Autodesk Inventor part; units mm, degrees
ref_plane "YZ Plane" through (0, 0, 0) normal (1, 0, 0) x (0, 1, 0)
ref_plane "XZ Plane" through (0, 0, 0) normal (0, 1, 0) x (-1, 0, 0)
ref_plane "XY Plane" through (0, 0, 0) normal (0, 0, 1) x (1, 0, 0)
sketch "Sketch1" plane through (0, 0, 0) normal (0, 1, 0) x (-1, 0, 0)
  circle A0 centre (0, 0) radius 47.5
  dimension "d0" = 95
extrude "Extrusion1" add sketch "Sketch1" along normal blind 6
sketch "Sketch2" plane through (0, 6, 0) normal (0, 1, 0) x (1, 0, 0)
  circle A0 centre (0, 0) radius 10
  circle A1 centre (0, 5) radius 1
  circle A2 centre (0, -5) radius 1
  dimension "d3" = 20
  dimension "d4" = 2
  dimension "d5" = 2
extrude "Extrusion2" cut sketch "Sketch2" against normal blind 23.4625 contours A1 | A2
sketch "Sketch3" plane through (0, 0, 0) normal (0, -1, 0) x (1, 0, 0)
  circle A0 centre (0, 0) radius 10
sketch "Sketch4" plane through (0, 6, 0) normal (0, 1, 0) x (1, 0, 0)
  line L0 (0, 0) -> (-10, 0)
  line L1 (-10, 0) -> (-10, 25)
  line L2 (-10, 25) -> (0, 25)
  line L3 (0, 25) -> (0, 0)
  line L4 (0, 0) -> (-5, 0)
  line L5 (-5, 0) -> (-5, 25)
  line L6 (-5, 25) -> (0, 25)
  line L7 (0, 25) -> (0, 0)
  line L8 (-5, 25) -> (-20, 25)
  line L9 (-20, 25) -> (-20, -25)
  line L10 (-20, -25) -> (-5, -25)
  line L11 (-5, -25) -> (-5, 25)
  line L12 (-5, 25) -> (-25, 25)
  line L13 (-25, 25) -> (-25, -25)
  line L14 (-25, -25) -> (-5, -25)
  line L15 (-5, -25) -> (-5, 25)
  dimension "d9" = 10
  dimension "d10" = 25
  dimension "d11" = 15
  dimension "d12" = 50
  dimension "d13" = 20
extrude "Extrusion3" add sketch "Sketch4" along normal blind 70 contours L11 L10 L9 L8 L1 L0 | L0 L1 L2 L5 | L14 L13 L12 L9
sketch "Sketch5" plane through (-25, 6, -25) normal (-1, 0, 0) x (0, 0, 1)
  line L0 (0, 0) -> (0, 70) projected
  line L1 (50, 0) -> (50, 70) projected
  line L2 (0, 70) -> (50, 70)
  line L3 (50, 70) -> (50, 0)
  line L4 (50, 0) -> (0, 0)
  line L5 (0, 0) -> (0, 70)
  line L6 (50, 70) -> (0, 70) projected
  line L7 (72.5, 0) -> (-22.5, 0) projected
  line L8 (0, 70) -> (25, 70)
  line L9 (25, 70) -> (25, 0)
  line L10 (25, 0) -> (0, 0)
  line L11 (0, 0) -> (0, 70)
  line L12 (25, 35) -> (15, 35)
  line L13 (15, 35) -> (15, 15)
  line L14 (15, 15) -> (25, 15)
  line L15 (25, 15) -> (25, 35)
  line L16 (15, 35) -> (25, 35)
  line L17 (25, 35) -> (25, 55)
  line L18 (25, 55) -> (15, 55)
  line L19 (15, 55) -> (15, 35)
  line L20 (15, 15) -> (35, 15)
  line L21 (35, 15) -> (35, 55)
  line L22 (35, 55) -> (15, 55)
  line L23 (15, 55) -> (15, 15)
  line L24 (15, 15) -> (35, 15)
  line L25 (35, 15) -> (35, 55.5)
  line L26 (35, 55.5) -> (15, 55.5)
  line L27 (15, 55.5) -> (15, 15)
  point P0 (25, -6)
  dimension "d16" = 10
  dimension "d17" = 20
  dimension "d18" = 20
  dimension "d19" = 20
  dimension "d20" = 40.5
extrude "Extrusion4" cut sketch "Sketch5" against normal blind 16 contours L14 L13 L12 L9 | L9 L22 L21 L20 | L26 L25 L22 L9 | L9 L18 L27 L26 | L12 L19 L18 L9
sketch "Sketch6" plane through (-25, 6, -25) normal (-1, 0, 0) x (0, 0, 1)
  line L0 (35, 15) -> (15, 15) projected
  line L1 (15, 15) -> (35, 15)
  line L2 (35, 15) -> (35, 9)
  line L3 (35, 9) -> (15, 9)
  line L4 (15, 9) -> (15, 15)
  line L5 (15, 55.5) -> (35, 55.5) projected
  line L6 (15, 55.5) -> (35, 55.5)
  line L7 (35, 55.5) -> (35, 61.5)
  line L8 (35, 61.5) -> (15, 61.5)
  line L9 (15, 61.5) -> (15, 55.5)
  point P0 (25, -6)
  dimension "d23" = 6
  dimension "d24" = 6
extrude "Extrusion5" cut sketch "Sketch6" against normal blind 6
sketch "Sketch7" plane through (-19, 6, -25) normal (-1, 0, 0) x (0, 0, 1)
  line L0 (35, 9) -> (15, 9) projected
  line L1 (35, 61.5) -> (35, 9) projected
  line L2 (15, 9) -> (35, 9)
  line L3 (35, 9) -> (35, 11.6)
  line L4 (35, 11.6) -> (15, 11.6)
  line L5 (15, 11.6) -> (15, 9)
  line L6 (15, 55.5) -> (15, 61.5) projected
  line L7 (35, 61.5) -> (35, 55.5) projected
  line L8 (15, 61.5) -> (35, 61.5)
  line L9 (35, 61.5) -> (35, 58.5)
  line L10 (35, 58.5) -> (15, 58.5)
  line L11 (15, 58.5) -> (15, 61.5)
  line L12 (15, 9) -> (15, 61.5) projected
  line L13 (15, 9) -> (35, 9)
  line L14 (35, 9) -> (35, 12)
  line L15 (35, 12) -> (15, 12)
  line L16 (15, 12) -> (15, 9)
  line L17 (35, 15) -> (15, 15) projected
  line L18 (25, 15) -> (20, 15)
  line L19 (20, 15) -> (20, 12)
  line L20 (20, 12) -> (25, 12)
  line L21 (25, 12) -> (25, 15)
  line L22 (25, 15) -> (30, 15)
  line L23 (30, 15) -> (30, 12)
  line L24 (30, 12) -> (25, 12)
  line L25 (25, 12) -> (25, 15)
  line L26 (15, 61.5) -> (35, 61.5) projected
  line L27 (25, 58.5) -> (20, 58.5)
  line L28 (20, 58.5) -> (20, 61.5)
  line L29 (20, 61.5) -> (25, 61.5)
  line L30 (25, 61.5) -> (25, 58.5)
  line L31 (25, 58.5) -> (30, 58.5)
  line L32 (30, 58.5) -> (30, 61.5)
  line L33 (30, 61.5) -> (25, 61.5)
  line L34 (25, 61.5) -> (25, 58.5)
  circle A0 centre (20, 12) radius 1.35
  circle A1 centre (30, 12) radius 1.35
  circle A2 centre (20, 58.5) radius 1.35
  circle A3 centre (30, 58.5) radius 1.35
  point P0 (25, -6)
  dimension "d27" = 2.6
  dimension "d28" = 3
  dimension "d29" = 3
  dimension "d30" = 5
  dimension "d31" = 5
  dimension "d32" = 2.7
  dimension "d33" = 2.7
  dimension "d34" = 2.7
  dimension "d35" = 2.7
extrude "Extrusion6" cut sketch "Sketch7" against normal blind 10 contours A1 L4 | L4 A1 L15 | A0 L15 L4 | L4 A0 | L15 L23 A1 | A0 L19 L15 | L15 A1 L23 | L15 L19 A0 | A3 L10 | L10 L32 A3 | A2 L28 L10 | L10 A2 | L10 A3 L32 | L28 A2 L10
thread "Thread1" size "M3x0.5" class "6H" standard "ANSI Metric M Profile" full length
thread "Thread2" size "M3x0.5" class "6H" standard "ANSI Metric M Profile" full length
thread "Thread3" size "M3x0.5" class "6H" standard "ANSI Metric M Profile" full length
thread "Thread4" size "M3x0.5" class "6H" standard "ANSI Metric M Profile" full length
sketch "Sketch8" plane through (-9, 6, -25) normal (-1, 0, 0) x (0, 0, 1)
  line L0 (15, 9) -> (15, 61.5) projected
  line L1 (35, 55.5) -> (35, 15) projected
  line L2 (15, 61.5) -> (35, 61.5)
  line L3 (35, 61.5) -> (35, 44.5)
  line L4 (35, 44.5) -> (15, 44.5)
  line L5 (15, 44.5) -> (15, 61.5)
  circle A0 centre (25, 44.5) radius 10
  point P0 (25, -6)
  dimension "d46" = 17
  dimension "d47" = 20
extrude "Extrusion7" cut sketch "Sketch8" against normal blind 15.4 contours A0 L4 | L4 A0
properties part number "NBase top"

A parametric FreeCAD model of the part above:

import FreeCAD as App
import Part
import Sketcher
Q = App.Units.Quantity


def add_polygon(sketch, points):
    """Adds a closed chain of lines whose ends are joined by coincident constraints."""
    first, n = sketch.GeometryCount, len(points)
    for a, b in zip(points, points[1:] + points[:1]):
        sketch.addGeometry(Part.LineSegment(App.Vector(*a, 0), App.Vector(*b, 0)), False)
    for i in range(n):
        sketch.addConstraint(Sketcher.Constraint("Coincident", first + i, 2, first + (i + 1) % n, 1))

doc = App.newDocument("Part")
body = doc.addObject("PartDesign::Body", "Body")

# Sketch on XZ plane
sketch1 = body.newObject("Sketcher::SketchObject", "Sketch")
sketch1.AttachmentSupport = (doc.getObject("XZ_Plane"), [""])
sketch1.MapMode = "FlatFace"
sketch1.addGeometry(Part.Circle(App.Vector(0, 0, 0), App.Vector(0, 0, 1), 47.5), False)
sketch1.addConstraint(Sketcher.Constraint("Coincident", 0, 3, -1, 1))
sketch1.addConstraint(Sketcher.Constraint("Diameter", 0, Q("95 mm")))
pad1 = body.newObject("PartDesign::Pad", "Pad")
pad1.Profile = sketch1
pad1.Length = 6
pad1.Reversed = True

# Sketch on XZ plane
sketch2 = body.newObject("Sketcher::SketchObject", "Sketch001")
sketch2.AttachmentSupport = (doc.getObject("XZ_Plane"), [""])
sketch2.MapMode = "FlatFace"
sketch2.AttachmentOffset = App.Placement(App.Vector(0, 0, -6), App.Rotation())
sketch2.addGeometry(Part.Circle(App.Vector(0, -5, 0), App.Vector(0, 0, 1), 1), False)
sketch2.addGeometry(Part.Circle(App.Vector(0, 5, 0), App.Vector(0, 0, 1), 1), False)
sketch2.addConstraint(Sketcher.Constraint("Equal", 0, 1))
sketch2.addConstraint(Sketcher.Constraint("Symmetric", 0, 3, 1, 3, -1, 1))
sketch2.addConstraint(Sketcher.Constraint("PointOnObject", 0, 3, -2))
sketch2.addConstraint(Sketcher.Constraint("Diameter", 0, Q("2 mm")))
sketch2.addConstraint(Sketcher.Constraint("DistanceY", 0, 3, -1, 1, Q("5 mm")))
pocket1 = body.newObject("PartDesign::Pocket", "Pocket")
pocket1.Profile = sketch2
pocket1.Length = 23.4625
pocket1.Reversed = True

# Sketch on XZ plane
sketch3 = body.newObject("Sketcher::SketchObject", "Sketch002")
sketch3.AttachmentSupport = (doc.getObject("XZ_Plane"), [""])
sketch3.MapMode = "FlatFace"
sketch3.AttachmentOffset = App.Placement(App.Vector(0, 0, -6), App.Rotation())
add_polygon(sketch3, [(-5, 25), (-5, -25), (-25, -25), (-25, 25)])  # lines 0-3
sketch3.addConstraint(Sketcher.Constraint("Vertical", 0))
sketch3.addConstraint(Sketcher.Constraint("Horizontal", 1))
sketch3.addConstraint(Sketcher.Constraint("Vertical", 2))
sketch3.addConstraint(Sketcher.Constraint("Horizontal", 3))
sketch3.addConstraint(Sketcher.Constraint("DistanceX", 1, 2, 1, 1, Q("20 mm")))
sketch3.addConstraint(Sketcher.Constraint("DistanceY", 0, 2, 0, 1, Q("50 mm")))
sketch3.addConstraint(Sketcher.Constraint("DistanceY", 0, 2, -1, 1, Q("25 mm")))
sketch3.addConstraint(Sketcher.Constraint("DistanceX", 1, 2, -1, 1, Q("25 mm")))
pad2 = body.newObject("PartDesign::Pad", "Pad001")
pad2.Profile = sketch3
pad2.Length = 70
pad2.Reversed = True

# Sketch on YZ plane
sketch4 = body.newObject("Sketcher::SketchObject", "Sketch003")
sketch4.AttachmentSupport = (doc.getObject("YZ_Plane"), [""])
sketch4.MapMode = "FlatFace"
sketch4.AttachmentOffset = App.Placement(App.Vector(0, 0, -25), App.Rotation())
add_polygon(sketch4, [(21, -10), (21, 10), (61.5, 10), (61.5, -10)])  # lines 0-3
sketch4.addConstraint(Sketcher.Constraint("Vertical", 0))
sketch4.addConstraint(Sketcher.Constraint("Horizontal", 1))
sketch4.addConstraint(Sketcher.Constraint("Vertical", 2))
sketch4.addConstraint(Sketcher.Constraint("Horizontal", 3))
sketch4.addConstraint(Sketcher.Constraint("DistanceY", 0, 1, 0, 2, Q("20 mm")))
sketch4.addConstraint(Sketcher.Constraint("DistanceX", 1, 1, 1, 2, Q("40.5 mm")))
sketch4.addConstraint(Sketcher.Constraint("DistanceY", -1, 1, 0, 2, Q("10 mm")))
sketch4.addConstraint(Sketcher.Constraint("DistanceX", -1, 1, 0, 2, Q("21 mm")))
pocket2 = body.newObject("PartDesign::Pocket", "Pocket001")
pocket2.Profile = sketch4
pocket2.Length = 16
pocket2.Reversed = True

# Sketch on YZ plane
sketch5 = body.newObject("Sketcher::SketchObject", "Sketch004")
sketch5.AttachmentSupport = (doc.getObject("YZ_Plane"), [""])
sketch5.MapMode = "FlatFace"
sketch5.AttachmentOffset = App.Placement(App.Vector(0, 0, -25), App.Rotation())
add_polygon(sketch5, [(15, 10), (21, 10), (21, -10), (15, -10)])  # lines 0-3
add_polygon(sketch5, [(67.5, -10), (61.5, -10), (61.5, 10), (67.5, 10)])  # lines 4-7
sketch5.addConstraint(Sketcher.Constraint("Horizontal", 0))
sketch5.addConstraint(Sketcher.Constraint("Vertical", 1))
sketch5.addConstraint(Sketcher.Constraint("Horizontal", 2))
sketch5.addConstraint(Sketcher.Constraint("Vertical", 3))
sketch5.addConstraint(Sketcher.Constraint("Horizontal", 4))
sketch5.addConstraint(Sketcher.Constraint("Vertical", 5))
sketch5.addConstraint(Sketcher.Constraint("Horizontal", 6))
sketch5.addConstraint(Sketcher.Constraint("Vertical", 7))
sketch5.addConstraint(Sketcher.Constraint("Horizontal", 2, 2, 4, 2))
sketch5.addConstraint(Sketcher.Constraint("Horizontal", 3, 2, 5, 2))
sketch5.addConstraint(Sketcher.Constraint("Equal", 2, 4))
sketch5.addConstraint(Sketcher.Constraint("DistanceX", 0, 1, 0, 2, Q("6 mm")))
sketch5.addConstraint(Sketcher.Constraint("DistanceY", 1, 2, 1, 1, Q("20 mm")))
sketch5.addConstraint(Sketcher.Constraint("DistanceX", -1, 1, 0, 2, Q("21 mm")))
sketch5.addConstraint(Sketcher.Constraint("DistanceY", -1, 1, 0, 2, Q("10 mm")))
sketch5.addConstraint(Sketcher.Constraint("DistanceX", -1, 1, 4, 2, Q("61.5 mm")))
pocket3 = body.newObject("PartDesign::Pocket", "Pocket002")
pocket3.Profile = sketch5
pocket3.Length = 6
pocket3.Reversed = True

# Sketch on YZ plane
sketch6 = body.newObject("Sketcher::SketchObject", "Sketch005")
sketch6.AttachmentSupport = (doc.getObject("YZ_Plane"), [""])
sketch6.MapMode = "FlatFace"
sketch6.AttachmentOffset = App.Placement(App.Vector(0, 0, -19), App.Rotation())
sketch6.addGeometry(Part.Circle(App.Vector(18, 5, 0), App.Vector(0, 0, 1), 1.35), False)
sketch6.addGeometry(Part.Circle(App.Vector(18, -5, 0), App.Vector(0, 0, 1), 1.35), False)
sketch6.addGeometry(Part.Circle(App.Vector(64.5, 5, 0), App.Vector(0, 0, 1), 1.35), False)
sketch6.addGeometry(Part.Circle(App.Vector(64.5, -5, 0), App.Vector(0, 0, 1), 1.35), False)
sketch6.addConstraint(Sketcher.Constraint("Equal", 0, 1))
sketch6.addConstraint(Sketcher.Constraint("Equal", 1, 2))
sketch6.addConstraint(Sketcher.Constraint("Equal", 2, 3))
sketch6.addConstraint(Sketcher.Constraint("Symmetric", 0, 3, 1, 3, -1))
sketch6.addConstraint(Sketcher.Constraint("Symmetric", 2, 3, 3, 3, -1))
sketch6.addConstraint(Sketcher.Constraint("Horizontal", 0, 3, 2, 3))
sketch6.addConstraint(Sketcher.Constraint("Diameter", 0, Q("2.7 mm")))
sketch6.addConstraint(Sketcher.Constraint("DistanceY", -1, 1, 0, 3, Q("5 mm")))
sketch6.addConstraint(Sketcher.Constraint("DistanceX", -1, 1, 0, 3, Q("18 mm")))
sketch6.addConstraint(Sketcher.Constraint("DistanceX", -1, 1, 2, 3, Q("64.5 mm")))
pocket4 = body.newObject("PartDesign::Pocket", "Pocket003")
pocket4.Profile = sketch6
pocket4.Length = 10
pocket4.Reversed = True

# Sketch on YZ plane
sketch7 = body.newObject("Sketcher::SketchObject", "Sketch006")
sketch7.AttachmentSupport = (doc.getObject("YZ_Plane"), [""])
sketch7.MapMode = "FlatFace"
sketch7.AttachmentOffset = App.Placement(App.Vector(0, 0, -9), App.Rotation())
sketch7.addGeometry(Part.Circle(App.Vector(50.5, 0, 0), App.Vector(0, 0, 1), 10), False)
sketch7.addConstraint(Sketcher.Constraint("PointOnObject", 0, 3, -1))
sketch7.addConstraint(Sketcher.Constraint("Diameter", 0, Q("20 mm")))
sketch7.addConstraint(Sketcher.Constraint("DistanceX", -1, 1, 0, 3, Q("50.5 mm")))
pocket5 = body.newObject("PartDesign::Pocket", "Pocket004")
pocket5.Profile = sketch7
pocket5.Length = 15.4
pocket5.Reversed = True

doc.recompute()
